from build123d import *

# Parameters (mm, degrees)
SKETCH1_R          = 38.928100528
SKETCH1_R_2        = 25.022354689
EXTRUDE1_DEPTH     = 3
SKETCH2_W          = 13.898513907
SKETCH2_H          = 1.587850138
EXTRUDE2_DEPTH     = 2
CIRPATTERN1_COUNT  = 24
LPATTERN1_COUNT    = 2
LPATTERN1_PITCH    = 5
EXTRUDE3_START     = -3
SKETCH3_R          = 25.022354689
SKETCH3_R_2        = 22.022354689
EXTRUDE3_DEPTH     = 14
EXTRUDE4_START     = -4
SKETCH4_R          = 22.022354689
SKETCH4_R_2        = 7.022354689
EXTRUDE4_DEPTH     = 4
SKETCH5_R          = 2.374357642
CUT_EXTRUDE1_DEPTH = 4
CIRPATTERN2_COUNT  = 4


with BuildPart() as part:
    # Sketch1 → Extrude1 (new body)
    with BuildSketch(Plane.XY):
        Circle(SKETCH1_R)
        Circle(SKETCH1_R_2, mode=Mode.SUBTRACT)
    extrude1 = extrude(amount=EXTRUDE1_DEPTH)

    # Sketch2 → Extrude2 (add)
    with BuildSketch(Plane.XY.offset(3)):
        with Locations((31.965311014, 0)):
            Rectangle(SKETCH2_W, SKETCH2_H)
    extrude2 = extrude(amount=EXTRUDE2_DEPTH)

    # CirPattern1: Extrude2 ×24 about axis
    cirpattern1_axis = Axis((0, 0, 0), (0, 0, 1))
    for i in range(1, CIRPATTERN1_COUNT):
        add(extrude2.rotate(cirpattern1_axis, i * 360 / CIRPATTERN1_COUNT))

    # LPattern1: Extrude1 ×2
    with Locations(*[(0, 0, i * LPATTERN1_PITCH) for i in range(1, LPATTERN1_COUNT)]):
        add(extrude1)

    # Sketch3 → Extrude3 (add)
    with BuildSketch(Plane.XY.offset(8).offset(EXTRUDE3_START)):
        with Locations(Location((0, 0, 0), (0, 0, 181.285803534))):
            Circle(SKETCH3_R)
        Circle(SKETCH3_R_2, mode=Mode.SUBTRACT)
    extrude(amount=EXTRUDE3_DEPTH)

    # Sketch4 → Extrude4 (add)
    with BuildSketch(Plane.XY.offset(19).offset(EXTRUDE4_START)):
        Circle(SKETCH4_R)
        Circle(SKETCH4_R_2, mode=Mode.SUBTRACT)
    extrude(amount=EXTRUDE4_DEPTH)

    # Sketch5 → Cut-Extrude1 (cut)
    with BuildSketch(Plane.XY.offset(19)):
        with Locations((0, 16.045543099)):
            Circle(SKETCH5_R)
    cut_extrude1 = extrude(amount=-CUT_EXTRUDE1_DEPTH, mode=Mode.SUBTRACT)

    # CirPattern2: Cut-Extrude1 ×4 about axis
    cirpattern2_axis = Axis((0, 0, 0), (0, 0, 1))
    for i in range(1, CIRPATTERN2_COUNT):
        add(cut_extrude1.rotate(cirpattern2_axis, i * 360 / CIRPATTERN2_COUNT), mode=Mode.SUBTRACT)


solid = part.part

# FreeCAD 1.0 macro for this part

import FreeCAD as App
import Part
import Sketcher

V = App.Vector

doc = App.newDocument("Part")
body = doc.addObject("PartDesign::Body", "Body")

# Sketch on XY plane
sketch1 = doc.addObject("Sketcher::SketchObject", "Sketch")
body.addObject(sketch1)
sketch1.AttachmentSupport = (doc.XY_Plane, [""])
sketch1.MapMode = "FlatFace"
sketch1.addGeometry([
    Part.Circle(V(0, 0, 0), V(0, 0, 1), 39),
    Part.Circle(V(0, 0, 0), V(0, 0, 1), 25),
], False)
sketch1.addConstraint([
    Sketcher.Constraint("Coincident", 0, 3, -1, 1),
    Sketcher.Constraint("Coincident", 1, 3, -1, 1),
    Sketcher.Constraint("Diameter", 0, 77.856201),
    Sketcher.Constraint("Diameter", 1, 50.044709),
])
pad1 = doc.addObject("PartDesign::Pad", "Pad")
body.addObject(pad1)
pad1.Profile = sketch1
pad1.Length = 3

# Sketch on XY plane
sketch2 = doc.addObject("Sketcher::SketchObject", "Sketch001")
body.addObject(sketch2)
sketch2.AttachmentSupport = (doc.XY_Plane, [""])
sketch2.MapMode = "FlatFace"
sketch2.AttachmentOffset = App.Placement(V(0, 0, 3), App.Rotation())
sketch2.addGeometry([
    Part.LineSegment(V(25, 0.8, 0), V(25, -0.8, 0)),
    Part.LineSegment(V(25, -0.8, 0), V(38.9, -0.8, 0)),
    Part.LineSegment(V(38.9, -0.8, 0), V(38.9, 0.8, 0)),
    Part.LineSegment(V(38.9, 0.8, 0), V(25, 0.8, 0)),
], False)
sketch2.addConstraint([
    Sketcher.Constraint("Coincident", 0, 2, 1, 1),
    Sketcher.Constraint("Coincident", 1, 2, 2, 1),
    Sketcher.Constraint("Coincident", 2, 2, 3, 1),
    Sketcher.Constraint("Coincident", 3, 2, 0, 1),
    Sketcher.Constraint("Vertical", 0),
    Sketcher.Constraint("Horizontal", 1),
    Sketcher.Constraint("Vertical", 2),
    Sketcher.Constraint("Horizontal", 3),
    Sketcher.Constraint("DistanceY", 0, 2, 0, 1, 1.58785),
    Sketcher.Constraint("DistanceX", 1, 1, 1, 2, 13.898514),
    Sketcher.Constraint("DistanceX", -1, 1, 0, 2, 25.016054),
    Sketcher.Constraint("DistanceY", 0, 2, -1, 1, 0.793925),
])
pad2 = doc.addObject("PartDesign::Pad", "Pad001")
body.addObject(pad2)
pad2.Profile = sketch2
pad2.Length = 2
doc.recompute()

polarpattern = doc.addObject("PartDesign::PolarPattern", "PolarPattern")
body.addObject(polarpattern)
polarpattern.Originals = [pad2]
polarpattern.Axis = (doc.Z_Axis, [""])
polarpattern.Angle = 360
polarpattern.Occurrences = 24
body.Tip = polarpattern
doc.recompute()

linearpattern = doc.addObject("PartDesign::LinearPattern", "LinearPattern")
body.addObject(linearpattern)
linearpattern.Originals = [pad1]
linearpattern.Direction = (doc.Z_Axis, [""])
linearpattern.Mode = "offset"
linearpattern.Offset = 5
linearpattern.Occurrences = 2
body.Tip = linearpattern

# Sketch on XY plane
sketch3 = doc.addObject("Sketcher::SketchObject", "Sketch002")
body.addObject(sketch3)
sketch3.AttachmentSupport = (doc.XY_Plane, [""])
sketch3.MapMode = "FlatFace"
sketch3.AttachmentOffset = App.Placement(V(0, 0, 5), App.Rotation())
sketch3.addGeometry([
    Part.Circle(V(0, 0, 0), V(0, 0, 1), 25),
    Part.Circle(V(0, 0, 0), V(0, 0, 1), 22),
], False)
sketch3.addConstraint([
    Sketcher.Constraint("Coincident", 0, 3, -1, 1),
    Sketcher.Constraint("Coincident", 1, 3, -1, 1),
    Sketcher.Constraint("Diameter", 0, 50.044709),
    Sketcher.Constraint("Diameter", 1, 44.044709),
])
pad3 = doc.addObject("PartDesign::Pad", "Pad002")
body.addObject(pad3)
pad3.Profile = sketch3
pad3.Length = 14

# Sketch on XY plane
sketch4 = doc.addObject("Sketcher::SketchObject", "Sketch003")
body.addObject(sketch4)
sketch4.AttachmentSupport = (doc.XY_Plane, [""])
sketch4.MapMode = "FlatFace"
sketch4.AttachmentOffset = App.Placement(V(0, 0, 15), App.Rotation())
sketch4.addGeometry([
    Part.Circle(V(0, 0, 0), V(0, 0, 1), 22),
    Part.Circle(V(0, 0, 0), V(0, 0, 1), 7),
], False)
sketch4.addConstraint([
    Sketcher.Constraint("Coincident", 0, 3, -1, 1),
    Sketcher.Constraint("Coincident", 1, 3, -1, 1),
    Sketcher.Constraint("Diameter", 0, 44.044709),
    Sketcher.Constraint("Diameter", 1, 14.044709),
])
pad4 = doc.addObject("PartDesign::Pad", "Pad003")
body.addObject(pad4)
pad4.Profile = sketch4
pad4.Length = 4

# Sketch on XY plane
sketch5 = doc.addObject("Sketcher::SketchObject", "Sketch004")
body.addObject(sketch5)
sketch5.AttachmentSupport = (doc.XY_Plane, [""])
sketch5.MapMode = "FlatFace"
sketch5.AttachmentOffset = App.Placement(V(0, 0, 19), App.Rotation())
sketch5.addGeometry(Part.Circle(V(0, 16, 0), V(0, 0, 1), 2.4), False)
sketch5.addConstraint([
    Sketcher.Constraint("PointOnObject", 0, 3, -2),
    Sketcher.Constraint("Diameter", 0, 4.748715),
    Sketcher.Constraint("DistanceY", -1, 1, 0, 3, 16.045543),
])
pocket1 = doc.addObject("PartDesign::Pocket", "Pocket")
body.addObject(pocket1)
pocket1.Profile = sketch5
pocket1.Length = 4
doc.recompute()

polarpattern2 = doc.addObject("PartDesign::PolarPattern", "PolarPattern001")
body.addObject(polarpattern2)
polarpattern2.Originals = [pocket1]
polarpattern2.Axis = (doc.Z_Axis, [""])
polarpattern2.Angle = 360
polarpattern2.Occurrences = 4
body.Tip = polarpattern2

doc.recompute()
